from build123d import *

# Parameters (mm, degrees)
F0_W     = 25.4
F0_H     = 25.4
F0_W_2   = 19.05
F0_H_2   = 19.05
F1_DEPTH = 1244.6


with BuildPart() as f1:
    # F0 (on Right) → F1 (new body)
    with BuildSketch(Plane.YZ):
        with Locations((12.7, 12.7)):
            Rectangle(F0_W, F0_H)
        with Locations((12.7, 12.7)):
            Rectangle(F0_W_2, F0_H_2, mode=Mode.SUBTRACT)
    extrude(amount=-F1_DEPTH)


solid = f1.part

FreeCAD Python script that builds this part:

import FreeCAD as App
import Part
import Sketcher

V = App.Vector
Q = App.Units.Quantity

doc = App.newDocument("Part")
body = doc.addObject("PartDesign::Body", "Body")

# Sketch on YZ plane
sketch1 = doc.addObject("Sketcher::SketchObject", "Sketch")
body.addObject(sketch1)
sketch1.AttachmentSupport = (doc.YZ_Plane, [""])
sketch1.MapMode = "FlatFace"
sketch1.addGeometry([
    Part.LineSegment(V(0, 25, 0), V(0, 0, 0)),  # 0
    Part.LineSegment(V(0, 0, 0), V(25, 0, 0)),  # 1
    Part.LineSegment(V(25, 0, 0), V(25, 25, 0)),  # 2
    Part.LineSegment(V(25, 25, 0), V(0, 25, 0)),  # 3
    Part.LineSegment(V(22, 3, 0), V(3, 3, 0)),  # 4
    Part.LineSegment(V(3, 3, 0), V(3, 22, 0)),  # 5
    Part.LineSegment(V(3, 22, 0), V(22, 22, 0)),  # 6
    Part.LineSegment(V(22, 22, 0), V(22, 3, 0)),  # 7
], False)
sketch1.addConstraint([
    Sketcher.Constraint("Coincident", 0, 2, 1, 1),
    Sketcher.Constraint("Coincident", 1, 2, 2, 1),
    Sketcher.Constraint("Coincident", 2, 2, 3, 1),
    Sketcher.Constraint("Coincident", 3, 2, 0, 1),
    Sketcher.Constraint("Coincident", 4, 2, 5, 1),
    Sketcher.Constraint("Coincident", 5, 2, 6, 1),
    Sketcher.Constraint("Coincident", 6, 2, 7, 1),
    Sketcher.Constraint("Coincident", 7, 2, 4, 1),
    Sketcher.Constraint("Vertical", 0),
    Sketcher.Constraint("Horizontal", 1),
    Sketcher.Constraint("Vertical", 2),
    Sketcher.Constraint("Horizontal", 3),
    Sketcher.Constraint("Horizontal", 4),
    Sketcher.Constraint("Vertical", 5),
    Sketcher.Constraint("Horizontal", 6),
    Sketcher.Constraint("Vertical", 7),
    Sketcher.Constraint("Coincident", 0, 2, -1, 1),
    Sketcher.Constraint("Equal", 3, 0),
    Sketcher.Constraint("Equal", 6, 5),
    Sketcher.Constraint("DistanceX", 1, 1, 1, 2, Q("1 in")),
    Sketcher.Constraint("DistanceX", 4, 2, 4, 1, Q("0.75 in")),
    Sketcher.Constraint("DistanceX", -1, 1, 4, 2, Q("0.125 in")),
    Sketcher.Constraint("DistanceY", -1, 1, 4, 2, Q("0.125 in")),
])
pad1 = doc.addObject("PartDesign::Pad", "Pad")
body.addObject(pad1)
pad1.Profile = sketch1
pad1.Length = Q("49 in")
pad1.Reversed = True

doc.recompute()
